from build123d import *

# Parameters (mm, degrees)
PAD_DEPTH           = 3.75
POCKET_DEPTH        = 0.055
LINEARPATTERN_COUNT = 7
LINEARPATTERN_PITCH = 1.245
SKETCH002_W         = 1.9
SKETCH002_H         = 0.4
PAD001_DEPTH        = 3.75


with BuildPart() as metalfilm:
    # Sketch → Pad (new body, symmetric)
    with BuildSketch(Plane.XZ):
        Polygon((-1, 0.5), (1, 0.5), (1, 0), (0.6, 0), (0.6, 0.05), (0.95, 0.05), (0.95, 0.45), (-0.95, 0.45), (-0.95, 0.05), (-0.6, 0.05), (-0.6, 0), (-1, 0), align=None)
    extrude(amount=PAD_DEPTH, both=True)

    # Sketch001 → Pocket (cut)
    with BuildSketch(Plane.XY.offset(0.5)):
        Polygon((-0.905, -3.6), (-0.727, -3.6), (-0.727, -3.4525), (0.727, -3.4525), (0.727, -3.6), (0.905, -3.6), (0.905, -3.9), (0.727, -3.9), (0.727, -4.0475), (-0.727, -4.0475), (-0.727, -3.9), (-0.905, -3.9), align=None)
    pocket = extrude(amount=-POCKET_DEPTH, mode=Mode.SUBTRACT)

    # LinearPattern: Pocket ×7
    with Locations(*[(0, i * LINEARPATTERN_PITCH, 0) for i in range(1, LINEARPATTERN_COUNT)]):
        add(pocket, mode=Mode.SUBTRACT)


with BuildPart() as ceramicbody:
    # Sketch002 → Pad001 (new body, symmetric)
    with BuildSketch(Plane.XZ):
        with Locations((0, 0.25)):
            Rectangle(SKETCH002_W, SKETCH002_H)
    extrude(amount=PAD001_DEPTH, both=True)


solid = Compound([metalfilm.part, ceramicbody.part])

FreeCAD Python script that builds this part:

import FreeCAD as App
import Part
import Sketcher
from FreeCAD import Vector
Q = App.Units.Quantity


def add_polygon(sketch, points):
    """Adds a closed chain of lines whose ends are joined by coincident constraints."""
    first, n = sketch.GeometryCount, len(points)
    for a, b in zip(points, points[1:] + points[:1]):
        sketch.addGeometry(Part.LineSegment(App.Vector(*a, 0), App.Vector(*b, 0)), False)
    for i in range(n):
        sketch.addConstraint(Sketcher.Constraint("Coincident", first + i, 2, first + (i + 1) % n, 1))

doc = App.newDocument("Part")
body = doc.addObject("PartDesign::Body", "Body")

# Sketch on XZ plane
sketch1 = body.newObject("Sketcher::SketchObject", "Sketch")
sketch1.AttachmentSupport = (doc.getObject("XZ_Plane"), [""])
sketch1.MapMode = "FlatFace"
add_polygon(sketch1, [(1, 0.5), (-1, 0.5), (-1, 0), (-0.6, 0), (-0.6, 0.05), (-0.95, 0.05), (-0.95, 0.45), (0.95, 0.45), (0.95, 0.05), (0.6, 0.05), (0.6, 0), (1, 0)])  # lines 0-11
sketch1.addConstraint(Sketcher.Constraint("Horizontal", 0))
sketch1.addConstraint(Sketcher.Constraint("Vertical", 1))
sketch1.addConstraint(Sketcher.Constraint("Horizontal", 2))
sketch1.addConstraint(Sketcher.Constraint("Vertical", 3))
sketch1.addConstraint(Sketcher.Constraint("Horizontal", 4))
sketch1.addConstraint(Sketcher.Constraint("Vertical", 5))
sketch1.addConstraint(Sketcher.Constraint("Horizontal", 6))
sketch1.addConstraint(Sketcher.Constraint("Vertical", 7))
sketch1.addConstraint(Sketcher.Constraint("Horizontal", 8))
sketch1.addConstraint(Sketcher.Constraint("Vertical", 9))
sketch1.addConstraint(Sketcher.Constraint("Horizontal", 10))
sketch1.addConstraint(Sketcher.Constraint("Vertical", 11))
sketch1.addConstraint(Sketcher.Constraint("Symmetric", 2, 2, 9, 2, -1, 1))
sketch1.addConstraint(Sketcher.Constraint("Symmetric", 4, 2, 7, 2, -2))
sketch1.addConstraint(Sketcher.Constraint("Symmetric", 1, 2, 10, 2, -2))
sketch1.addConstraint(Sketcher.Constraint("Equal", 10, 5))
sketch1.addConstraint(Sketcher.Constraint("DistanceX", 0, 2, 0, 1, Q("2 mm")))
sketch1.addConstraint(Sketcher.Constraint("DistanceX", 2, 1, 2, 2, Q("0.4 mm")))
sketch1.addConstraint(Sketcher.Constraint("DistanceX", 6, 1, 6, 2, Q("1.9 mm")))
sketch1.addConstraint(Sketcher.Constraint("DistanceY", 1, 2, 1, 1, Q("0.5 mm")))
sketch1.addConstraint(Sketcher.Constraint("DistanceY", 3, 1, 3, 2, Q("0.05 mm")))
pad1 = body.newObject("PartDesign::Pad", "Pad")
pad1.Profile = sketch1
pad1.Length = 7.5
pad1.Midplane = True

# Sketch on XY plane
sketch2 = body.newObject("Sketcher::SketchObject", "Sketch001")
sketch2.AttachmentSupport = (doc.getObject("XY_Plane"), [""])
sketch2.MapMode = "FlatFace"
sketch2.AttachmentOffset = App.Placement(Vector(0, 0, 0.5), App.Rotation())
add_polygon(sketch2, [(-0.73, -3.6), (-0.91, -3.6), (-0.91, -3.9), (-0.73, -3.9), (-0.73, -4.05), (0.73, -4.05), (0.73, -3.9), (0.91, -3.9), (0.91, -3.6), (0.73, -3.6), (0.73, -3.45), (-0.73, -3.45)])  # lines 0-11
sketch2.addConstraint(Sketcher.Constraint("Horizontal", 0))
sketch2.addConstraint(Sketcher.Constraint("Vertical", 1))
sketch2.addConstraint(Sketcher.Constraint("Horizontal", 2))
sketch2.addConstraint(Sketcher.Constraint("Vertical", 3))
sketch2.addConstraint(Sketcher.Constraint("Horizontal", 4))
sketch2.addConstraint(Sketcher.Constraint("Vertical", 5))
sketch2.addConstraint(Sketcher.Constraint("Horizontal", 6))
sketch2.addConstraint(Sketcher.Constraint("Vertical", 7))
sketch2.addConstraint(Sketcher.Constraint("Horizontal", 8))
sketch2.addConstraint(Sketcher.Constraint("Vertical", 9))
sketch2.addConstraint(Sketcher.Constraint("Horizontal", 10))
sketch2.addConstraint(Sketcher.Constraint("Vertical", 11))
sketch2.addConstraint(Sketcher.Constraint("Symmetric", 2, 2, 5, 2, -2))
sketch2.addConstraint(Sketcher.Constraint("Symmetric", 0, 2, 7, 2, -2))
sketch2.addConstraint(Sketcher.Constraint("Vertical", 5, 2, 8, 2))
sketch2.addConstraint(Sketcher.Constraint("Vertical", 3, 2, 10, 2))
sketch2.addConstraint(Sketcher.Constraint("Equal", 5, 9))
sketch2.addConstraint(Sketcher.Constraint("DistanceY", 1, 2, 1, 1, Q("0.3 mm")))
sketch2.addConstraint(Sketcher.Constraint("DistanceY", 0, 2, -1, 1, Q("3.6 mm")))
sketch2.addConstraint(Sketcher.Constraint("DistanceX", 0, 2, 0, 1, Q("0.178 mm")))
sketch2.addConstraint(Sketcher.Constraint("DistanceX", 4, 1, 4, 2, Q("1.454 mm")))
sketch2.addConstraint(Sketcher.Constraint("DistanceY", 3, 2, 3, 1, Q("0.1475 mm")))
pocket1 = body.newObject("PartDesign::Pocket", "Pocket")
pocket1.Profile = sketch2
pocket1.Length = 0.055
doc.recompute()

linearpattern = body.newObject("PartDesign::LinearPattern", "LinearPattern")
linearpattern.Originals = [pocket1]
linearpattern.Direction = (doc.getObject("Y_Axis"), [""])
linearpattern.Mode = "offset"
linearpattern.Offset = 1.245
linearpattern.Occurrences = 7
body.Tip = linearpattern
body2 = doc.addObject("PartDesign::Body", "Body001")

# Sketch on XZ plane
sketch3 = body2.newObject("Sketcher::SketchObject", "Sketch002")
sketch3.AttachmentSupport = (doc.getObject("XZ_Plane001"), [""])
sketch3.MapMode = "FlatFace"
add_polygon(sketch3, [(-0.95, 0.45), (-0.95, 0.05), (0.95, 0.05), (0.95, 0.45)])  # lines 0-3
sketch3.addConstraint(Sketcher.Constraint("Vertical", 0))
sketch3.addConstraint(Sketcher.Constraint("Horizontal", 1))
sketch3.addConstraint(Sketcher.Constraint("Vertical", 2))
sketch3.addConstraint(Sketcher.Constraint("Horizontal", 3))
sketch3.addConstraint(Sketcher.Constraint("DistanceX", 1, 1, 1, 2, Q("1.9 mm")))
sketch3.addConstraint(Sketcher.Constraint("DistanceY", 0, 2, 0, 1, Q("0.4 mm")))
sketch3.addConstraint(Sketcher.Constraint("DistanceX", 0, 2, -1, 1, Q("0.95 mm")))
sketch3.addConstraint(Sketcher.Constraint("DistanceY", -1, 1, 0, 2, Q("0.05 mm")))
pad2 = body2.newObject("PartDesign::Pad", "Pad001")
pad2.Profile = sketch3
pad2.Length = 7.5
pad2.Midplane = True

doc.recompute()
